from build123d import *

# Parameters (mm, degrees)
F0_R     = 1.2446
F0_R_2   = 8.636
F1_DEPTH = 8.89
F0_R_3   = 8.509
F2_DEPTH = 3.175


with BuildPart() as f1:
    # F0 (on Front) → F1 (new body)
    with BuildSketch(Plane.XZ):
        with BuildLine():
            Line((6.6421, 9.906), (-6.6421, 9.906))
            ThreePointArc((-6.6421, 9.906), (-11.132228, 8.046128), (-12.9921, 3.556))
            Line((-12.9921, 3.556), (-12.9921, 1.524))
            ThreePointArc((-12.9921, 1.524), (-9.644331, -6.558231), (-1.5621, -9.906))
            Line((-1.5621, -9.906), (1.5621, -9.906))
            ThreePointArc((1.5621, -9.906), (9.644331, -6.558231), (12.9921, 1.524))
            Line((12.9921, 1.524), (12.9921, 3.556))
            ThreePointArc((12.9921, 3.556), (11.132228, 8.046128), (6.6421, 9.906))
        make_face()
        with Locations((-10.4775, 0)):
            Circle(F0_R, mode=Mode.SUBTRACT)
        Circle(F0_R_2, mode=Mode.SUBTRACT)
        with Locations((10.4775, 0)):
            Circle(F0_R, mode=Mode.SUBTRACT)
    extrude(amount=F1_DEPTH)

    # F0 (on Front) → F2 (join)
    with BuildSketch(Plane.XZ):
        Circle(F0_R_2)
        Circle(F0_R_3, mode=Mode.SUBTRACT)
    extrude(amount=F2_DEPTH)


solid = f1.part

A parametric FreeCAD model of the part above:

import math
import FreeCAD as App
import Part
import Sketcher
from FreeCAD import Vector
Q = App.Units.Quantity

doc = App.newDocument("Part")
body = doc.addObject("PartDesign::Body", "Body")

# Sketch on XZ plane
sketch1 = body.newObject("Sketcher::SketchObject", "Sketch")
sketch1.AttachmentSupport = (doc.getObject("XZ_Plane"), [""])
sketch1.MapMode = "FlatFace"
sketch1.addGeometry([
    Part.LineSegment(Vector(6.6, 9.9, 0), Vector(-6.6, 9.9, 0)),  # 0
    Part.ArcOfCircle(Part.Circle(Vector(-6.6, 3.6, 0), Vector(0, 0, 1), 6.4), math.radians(90), math.radians(180)),  # 1
    Part.LineSegment(Vector(-13, 3.6, 0), Vector(-13, 1.5, 0)),  # 2
    Part.ArcOfCircle(Part.Circle(Vector(-1.6, 1.5, 0), Vector(0, 0, 1), 11.4), math.radians(180), math.radians(270)),  # 3
    Part.LineSegment(Vector(-1.6, -9.9, 0), Vector(1.6, -9.9, 0)),  # 4
    Part.ArcOfCircle(Part.Circle(Vector(1.6, 1.5, 0), Vector(0, 0, 1), 11.4), math.radians(-90), math.radians(0)),  # 5
    Part.LineSegment(Vector(13, 1.5, 0), Vector(13, 3.6, 0)),  # 6
    Part.ArcOfCircle(Part.Circle(Vector(6.6, 3.6, 0), Vector(0, 0, 1), 6.4), math.radians(0), math.radians(90)),  # 7
    Part.Circle(Vector(-10.5, 0, 0), Vector(0, 0, 1), 1.2),  # 8
    Part.Circle(Vector(0, 0, 0), Vector(0, 0, 1), 8.6),  # 9
    Part.Circle(Vector(10.5, 0, 0), Vector(0, 0, 1), 1.2),  # 10
], False)
sketch1.addConstraint([
    Sketcher.Constraint("Tangent", 0, 2, 1, 1),
    Sketcher.Constraint("Tangent", 1, 2, 2, 1),
    Sketcher.Constraint("Tangent", 2, 2, 3, 1),
    Sketcher.Constraint("Tangent", 3, 2, 4, 1),
    Sketcher.Constraint("Tangent", 4, 2, 5, 1),
    Sketcher.Constraint("Tangent", 5, 2, 6, 1),
    Sketcher.Constraint("Tangent", 6, 2, 7, 1),
    Sketcher.Constraint("Tangent", 7, 2, 0, 1),
    Sketcher.Constraint("Horizontal", 0),
    Sketcher.Constraint("Vertical", 2),
    Sketcher.Constraint("Horizontal", 4),
    Sketcher.Constraint("Vertical", 6),
    Sketcher.Constraint("Coincident", 9, 3, -1, 1),
    Sketcher.Constraint("Equal", 3, 5),
    Sketcher.Constraint("Equal", 1, 7),
    Sketcher.Constraint("Equal", 8, 10),
    Sketcher.Constraint("Symmetric", 8, 3, 10, 3, -1, 1),
    Sketcher.Constraint("PointOnObject", 8, 3, -1),
    Sketcher.Constraint("Diameter", 9, Q("0.68 in")),
    Sketcher.Constraint("Radius", 1, Q("0.25 in")),
    Sketcher.Constraint("Radius", 3, Q("0.4499999 in")),
    Sketcher.Constraint("Diameter", 8, Q("0.098 in")),
    Sketcher.Constraint("DistanceY", 2, 2, 2, 1, Q("0.08 in")),
    Sketcher.Constraint("DistanceX", 0, 2, 0, 1, Q("0.523 in")),
    Sketcher.Constraint("DistanceY", -1, 1, 1, 3, Q("0.14 in")),
    Sketcher.Constraint("DistanceX", 8, 3, 1, 3, Q("0.151 in")),
    Sketcher.Constraint("DistanceX", 7, 3, 10, 3, Q("0.151 in")),
])
pad1 = body.newObject("PartDesign::Pad", "Pad")
pad1.Profile = sketch1
pad1.Length = Q("0.35 in")

# Sketch on XZ plane
sketch2 = body.newObject("Sketcher::SketchObject", "Sketch001")
sketch2.AttachmentSupport = (doc.getObject("XZ_Plane"), [""])
sketch2.MapMode = "FlatFace"
sketch2.addGeometry([
    Part.Circle(Vector(0, 0, 0), Vector(0, 0, 1), 9),
    Part.Circle(Vector(0, 0, 0), Vector(0, 0, 1), 9),
], False)
sketch2.addConstraint([
    Sketcher.Constraint("Coincident", 0, 3, -1, 1),
    Sketcher.Constraint("Coincident", 1, 3, -1, 1),
    Sketcher.Constraint("Diameter", 0, Q("0.68 in")),
    Sketcher.Constraint("Diameter", 1, Q("0.67 in")),
])
pad2 = body.newObject("PartDesign::Pad", "Pad001")
pad2.Profile = sketch2
pad2.Length = Q("0.125 in")

doc.recompute()
